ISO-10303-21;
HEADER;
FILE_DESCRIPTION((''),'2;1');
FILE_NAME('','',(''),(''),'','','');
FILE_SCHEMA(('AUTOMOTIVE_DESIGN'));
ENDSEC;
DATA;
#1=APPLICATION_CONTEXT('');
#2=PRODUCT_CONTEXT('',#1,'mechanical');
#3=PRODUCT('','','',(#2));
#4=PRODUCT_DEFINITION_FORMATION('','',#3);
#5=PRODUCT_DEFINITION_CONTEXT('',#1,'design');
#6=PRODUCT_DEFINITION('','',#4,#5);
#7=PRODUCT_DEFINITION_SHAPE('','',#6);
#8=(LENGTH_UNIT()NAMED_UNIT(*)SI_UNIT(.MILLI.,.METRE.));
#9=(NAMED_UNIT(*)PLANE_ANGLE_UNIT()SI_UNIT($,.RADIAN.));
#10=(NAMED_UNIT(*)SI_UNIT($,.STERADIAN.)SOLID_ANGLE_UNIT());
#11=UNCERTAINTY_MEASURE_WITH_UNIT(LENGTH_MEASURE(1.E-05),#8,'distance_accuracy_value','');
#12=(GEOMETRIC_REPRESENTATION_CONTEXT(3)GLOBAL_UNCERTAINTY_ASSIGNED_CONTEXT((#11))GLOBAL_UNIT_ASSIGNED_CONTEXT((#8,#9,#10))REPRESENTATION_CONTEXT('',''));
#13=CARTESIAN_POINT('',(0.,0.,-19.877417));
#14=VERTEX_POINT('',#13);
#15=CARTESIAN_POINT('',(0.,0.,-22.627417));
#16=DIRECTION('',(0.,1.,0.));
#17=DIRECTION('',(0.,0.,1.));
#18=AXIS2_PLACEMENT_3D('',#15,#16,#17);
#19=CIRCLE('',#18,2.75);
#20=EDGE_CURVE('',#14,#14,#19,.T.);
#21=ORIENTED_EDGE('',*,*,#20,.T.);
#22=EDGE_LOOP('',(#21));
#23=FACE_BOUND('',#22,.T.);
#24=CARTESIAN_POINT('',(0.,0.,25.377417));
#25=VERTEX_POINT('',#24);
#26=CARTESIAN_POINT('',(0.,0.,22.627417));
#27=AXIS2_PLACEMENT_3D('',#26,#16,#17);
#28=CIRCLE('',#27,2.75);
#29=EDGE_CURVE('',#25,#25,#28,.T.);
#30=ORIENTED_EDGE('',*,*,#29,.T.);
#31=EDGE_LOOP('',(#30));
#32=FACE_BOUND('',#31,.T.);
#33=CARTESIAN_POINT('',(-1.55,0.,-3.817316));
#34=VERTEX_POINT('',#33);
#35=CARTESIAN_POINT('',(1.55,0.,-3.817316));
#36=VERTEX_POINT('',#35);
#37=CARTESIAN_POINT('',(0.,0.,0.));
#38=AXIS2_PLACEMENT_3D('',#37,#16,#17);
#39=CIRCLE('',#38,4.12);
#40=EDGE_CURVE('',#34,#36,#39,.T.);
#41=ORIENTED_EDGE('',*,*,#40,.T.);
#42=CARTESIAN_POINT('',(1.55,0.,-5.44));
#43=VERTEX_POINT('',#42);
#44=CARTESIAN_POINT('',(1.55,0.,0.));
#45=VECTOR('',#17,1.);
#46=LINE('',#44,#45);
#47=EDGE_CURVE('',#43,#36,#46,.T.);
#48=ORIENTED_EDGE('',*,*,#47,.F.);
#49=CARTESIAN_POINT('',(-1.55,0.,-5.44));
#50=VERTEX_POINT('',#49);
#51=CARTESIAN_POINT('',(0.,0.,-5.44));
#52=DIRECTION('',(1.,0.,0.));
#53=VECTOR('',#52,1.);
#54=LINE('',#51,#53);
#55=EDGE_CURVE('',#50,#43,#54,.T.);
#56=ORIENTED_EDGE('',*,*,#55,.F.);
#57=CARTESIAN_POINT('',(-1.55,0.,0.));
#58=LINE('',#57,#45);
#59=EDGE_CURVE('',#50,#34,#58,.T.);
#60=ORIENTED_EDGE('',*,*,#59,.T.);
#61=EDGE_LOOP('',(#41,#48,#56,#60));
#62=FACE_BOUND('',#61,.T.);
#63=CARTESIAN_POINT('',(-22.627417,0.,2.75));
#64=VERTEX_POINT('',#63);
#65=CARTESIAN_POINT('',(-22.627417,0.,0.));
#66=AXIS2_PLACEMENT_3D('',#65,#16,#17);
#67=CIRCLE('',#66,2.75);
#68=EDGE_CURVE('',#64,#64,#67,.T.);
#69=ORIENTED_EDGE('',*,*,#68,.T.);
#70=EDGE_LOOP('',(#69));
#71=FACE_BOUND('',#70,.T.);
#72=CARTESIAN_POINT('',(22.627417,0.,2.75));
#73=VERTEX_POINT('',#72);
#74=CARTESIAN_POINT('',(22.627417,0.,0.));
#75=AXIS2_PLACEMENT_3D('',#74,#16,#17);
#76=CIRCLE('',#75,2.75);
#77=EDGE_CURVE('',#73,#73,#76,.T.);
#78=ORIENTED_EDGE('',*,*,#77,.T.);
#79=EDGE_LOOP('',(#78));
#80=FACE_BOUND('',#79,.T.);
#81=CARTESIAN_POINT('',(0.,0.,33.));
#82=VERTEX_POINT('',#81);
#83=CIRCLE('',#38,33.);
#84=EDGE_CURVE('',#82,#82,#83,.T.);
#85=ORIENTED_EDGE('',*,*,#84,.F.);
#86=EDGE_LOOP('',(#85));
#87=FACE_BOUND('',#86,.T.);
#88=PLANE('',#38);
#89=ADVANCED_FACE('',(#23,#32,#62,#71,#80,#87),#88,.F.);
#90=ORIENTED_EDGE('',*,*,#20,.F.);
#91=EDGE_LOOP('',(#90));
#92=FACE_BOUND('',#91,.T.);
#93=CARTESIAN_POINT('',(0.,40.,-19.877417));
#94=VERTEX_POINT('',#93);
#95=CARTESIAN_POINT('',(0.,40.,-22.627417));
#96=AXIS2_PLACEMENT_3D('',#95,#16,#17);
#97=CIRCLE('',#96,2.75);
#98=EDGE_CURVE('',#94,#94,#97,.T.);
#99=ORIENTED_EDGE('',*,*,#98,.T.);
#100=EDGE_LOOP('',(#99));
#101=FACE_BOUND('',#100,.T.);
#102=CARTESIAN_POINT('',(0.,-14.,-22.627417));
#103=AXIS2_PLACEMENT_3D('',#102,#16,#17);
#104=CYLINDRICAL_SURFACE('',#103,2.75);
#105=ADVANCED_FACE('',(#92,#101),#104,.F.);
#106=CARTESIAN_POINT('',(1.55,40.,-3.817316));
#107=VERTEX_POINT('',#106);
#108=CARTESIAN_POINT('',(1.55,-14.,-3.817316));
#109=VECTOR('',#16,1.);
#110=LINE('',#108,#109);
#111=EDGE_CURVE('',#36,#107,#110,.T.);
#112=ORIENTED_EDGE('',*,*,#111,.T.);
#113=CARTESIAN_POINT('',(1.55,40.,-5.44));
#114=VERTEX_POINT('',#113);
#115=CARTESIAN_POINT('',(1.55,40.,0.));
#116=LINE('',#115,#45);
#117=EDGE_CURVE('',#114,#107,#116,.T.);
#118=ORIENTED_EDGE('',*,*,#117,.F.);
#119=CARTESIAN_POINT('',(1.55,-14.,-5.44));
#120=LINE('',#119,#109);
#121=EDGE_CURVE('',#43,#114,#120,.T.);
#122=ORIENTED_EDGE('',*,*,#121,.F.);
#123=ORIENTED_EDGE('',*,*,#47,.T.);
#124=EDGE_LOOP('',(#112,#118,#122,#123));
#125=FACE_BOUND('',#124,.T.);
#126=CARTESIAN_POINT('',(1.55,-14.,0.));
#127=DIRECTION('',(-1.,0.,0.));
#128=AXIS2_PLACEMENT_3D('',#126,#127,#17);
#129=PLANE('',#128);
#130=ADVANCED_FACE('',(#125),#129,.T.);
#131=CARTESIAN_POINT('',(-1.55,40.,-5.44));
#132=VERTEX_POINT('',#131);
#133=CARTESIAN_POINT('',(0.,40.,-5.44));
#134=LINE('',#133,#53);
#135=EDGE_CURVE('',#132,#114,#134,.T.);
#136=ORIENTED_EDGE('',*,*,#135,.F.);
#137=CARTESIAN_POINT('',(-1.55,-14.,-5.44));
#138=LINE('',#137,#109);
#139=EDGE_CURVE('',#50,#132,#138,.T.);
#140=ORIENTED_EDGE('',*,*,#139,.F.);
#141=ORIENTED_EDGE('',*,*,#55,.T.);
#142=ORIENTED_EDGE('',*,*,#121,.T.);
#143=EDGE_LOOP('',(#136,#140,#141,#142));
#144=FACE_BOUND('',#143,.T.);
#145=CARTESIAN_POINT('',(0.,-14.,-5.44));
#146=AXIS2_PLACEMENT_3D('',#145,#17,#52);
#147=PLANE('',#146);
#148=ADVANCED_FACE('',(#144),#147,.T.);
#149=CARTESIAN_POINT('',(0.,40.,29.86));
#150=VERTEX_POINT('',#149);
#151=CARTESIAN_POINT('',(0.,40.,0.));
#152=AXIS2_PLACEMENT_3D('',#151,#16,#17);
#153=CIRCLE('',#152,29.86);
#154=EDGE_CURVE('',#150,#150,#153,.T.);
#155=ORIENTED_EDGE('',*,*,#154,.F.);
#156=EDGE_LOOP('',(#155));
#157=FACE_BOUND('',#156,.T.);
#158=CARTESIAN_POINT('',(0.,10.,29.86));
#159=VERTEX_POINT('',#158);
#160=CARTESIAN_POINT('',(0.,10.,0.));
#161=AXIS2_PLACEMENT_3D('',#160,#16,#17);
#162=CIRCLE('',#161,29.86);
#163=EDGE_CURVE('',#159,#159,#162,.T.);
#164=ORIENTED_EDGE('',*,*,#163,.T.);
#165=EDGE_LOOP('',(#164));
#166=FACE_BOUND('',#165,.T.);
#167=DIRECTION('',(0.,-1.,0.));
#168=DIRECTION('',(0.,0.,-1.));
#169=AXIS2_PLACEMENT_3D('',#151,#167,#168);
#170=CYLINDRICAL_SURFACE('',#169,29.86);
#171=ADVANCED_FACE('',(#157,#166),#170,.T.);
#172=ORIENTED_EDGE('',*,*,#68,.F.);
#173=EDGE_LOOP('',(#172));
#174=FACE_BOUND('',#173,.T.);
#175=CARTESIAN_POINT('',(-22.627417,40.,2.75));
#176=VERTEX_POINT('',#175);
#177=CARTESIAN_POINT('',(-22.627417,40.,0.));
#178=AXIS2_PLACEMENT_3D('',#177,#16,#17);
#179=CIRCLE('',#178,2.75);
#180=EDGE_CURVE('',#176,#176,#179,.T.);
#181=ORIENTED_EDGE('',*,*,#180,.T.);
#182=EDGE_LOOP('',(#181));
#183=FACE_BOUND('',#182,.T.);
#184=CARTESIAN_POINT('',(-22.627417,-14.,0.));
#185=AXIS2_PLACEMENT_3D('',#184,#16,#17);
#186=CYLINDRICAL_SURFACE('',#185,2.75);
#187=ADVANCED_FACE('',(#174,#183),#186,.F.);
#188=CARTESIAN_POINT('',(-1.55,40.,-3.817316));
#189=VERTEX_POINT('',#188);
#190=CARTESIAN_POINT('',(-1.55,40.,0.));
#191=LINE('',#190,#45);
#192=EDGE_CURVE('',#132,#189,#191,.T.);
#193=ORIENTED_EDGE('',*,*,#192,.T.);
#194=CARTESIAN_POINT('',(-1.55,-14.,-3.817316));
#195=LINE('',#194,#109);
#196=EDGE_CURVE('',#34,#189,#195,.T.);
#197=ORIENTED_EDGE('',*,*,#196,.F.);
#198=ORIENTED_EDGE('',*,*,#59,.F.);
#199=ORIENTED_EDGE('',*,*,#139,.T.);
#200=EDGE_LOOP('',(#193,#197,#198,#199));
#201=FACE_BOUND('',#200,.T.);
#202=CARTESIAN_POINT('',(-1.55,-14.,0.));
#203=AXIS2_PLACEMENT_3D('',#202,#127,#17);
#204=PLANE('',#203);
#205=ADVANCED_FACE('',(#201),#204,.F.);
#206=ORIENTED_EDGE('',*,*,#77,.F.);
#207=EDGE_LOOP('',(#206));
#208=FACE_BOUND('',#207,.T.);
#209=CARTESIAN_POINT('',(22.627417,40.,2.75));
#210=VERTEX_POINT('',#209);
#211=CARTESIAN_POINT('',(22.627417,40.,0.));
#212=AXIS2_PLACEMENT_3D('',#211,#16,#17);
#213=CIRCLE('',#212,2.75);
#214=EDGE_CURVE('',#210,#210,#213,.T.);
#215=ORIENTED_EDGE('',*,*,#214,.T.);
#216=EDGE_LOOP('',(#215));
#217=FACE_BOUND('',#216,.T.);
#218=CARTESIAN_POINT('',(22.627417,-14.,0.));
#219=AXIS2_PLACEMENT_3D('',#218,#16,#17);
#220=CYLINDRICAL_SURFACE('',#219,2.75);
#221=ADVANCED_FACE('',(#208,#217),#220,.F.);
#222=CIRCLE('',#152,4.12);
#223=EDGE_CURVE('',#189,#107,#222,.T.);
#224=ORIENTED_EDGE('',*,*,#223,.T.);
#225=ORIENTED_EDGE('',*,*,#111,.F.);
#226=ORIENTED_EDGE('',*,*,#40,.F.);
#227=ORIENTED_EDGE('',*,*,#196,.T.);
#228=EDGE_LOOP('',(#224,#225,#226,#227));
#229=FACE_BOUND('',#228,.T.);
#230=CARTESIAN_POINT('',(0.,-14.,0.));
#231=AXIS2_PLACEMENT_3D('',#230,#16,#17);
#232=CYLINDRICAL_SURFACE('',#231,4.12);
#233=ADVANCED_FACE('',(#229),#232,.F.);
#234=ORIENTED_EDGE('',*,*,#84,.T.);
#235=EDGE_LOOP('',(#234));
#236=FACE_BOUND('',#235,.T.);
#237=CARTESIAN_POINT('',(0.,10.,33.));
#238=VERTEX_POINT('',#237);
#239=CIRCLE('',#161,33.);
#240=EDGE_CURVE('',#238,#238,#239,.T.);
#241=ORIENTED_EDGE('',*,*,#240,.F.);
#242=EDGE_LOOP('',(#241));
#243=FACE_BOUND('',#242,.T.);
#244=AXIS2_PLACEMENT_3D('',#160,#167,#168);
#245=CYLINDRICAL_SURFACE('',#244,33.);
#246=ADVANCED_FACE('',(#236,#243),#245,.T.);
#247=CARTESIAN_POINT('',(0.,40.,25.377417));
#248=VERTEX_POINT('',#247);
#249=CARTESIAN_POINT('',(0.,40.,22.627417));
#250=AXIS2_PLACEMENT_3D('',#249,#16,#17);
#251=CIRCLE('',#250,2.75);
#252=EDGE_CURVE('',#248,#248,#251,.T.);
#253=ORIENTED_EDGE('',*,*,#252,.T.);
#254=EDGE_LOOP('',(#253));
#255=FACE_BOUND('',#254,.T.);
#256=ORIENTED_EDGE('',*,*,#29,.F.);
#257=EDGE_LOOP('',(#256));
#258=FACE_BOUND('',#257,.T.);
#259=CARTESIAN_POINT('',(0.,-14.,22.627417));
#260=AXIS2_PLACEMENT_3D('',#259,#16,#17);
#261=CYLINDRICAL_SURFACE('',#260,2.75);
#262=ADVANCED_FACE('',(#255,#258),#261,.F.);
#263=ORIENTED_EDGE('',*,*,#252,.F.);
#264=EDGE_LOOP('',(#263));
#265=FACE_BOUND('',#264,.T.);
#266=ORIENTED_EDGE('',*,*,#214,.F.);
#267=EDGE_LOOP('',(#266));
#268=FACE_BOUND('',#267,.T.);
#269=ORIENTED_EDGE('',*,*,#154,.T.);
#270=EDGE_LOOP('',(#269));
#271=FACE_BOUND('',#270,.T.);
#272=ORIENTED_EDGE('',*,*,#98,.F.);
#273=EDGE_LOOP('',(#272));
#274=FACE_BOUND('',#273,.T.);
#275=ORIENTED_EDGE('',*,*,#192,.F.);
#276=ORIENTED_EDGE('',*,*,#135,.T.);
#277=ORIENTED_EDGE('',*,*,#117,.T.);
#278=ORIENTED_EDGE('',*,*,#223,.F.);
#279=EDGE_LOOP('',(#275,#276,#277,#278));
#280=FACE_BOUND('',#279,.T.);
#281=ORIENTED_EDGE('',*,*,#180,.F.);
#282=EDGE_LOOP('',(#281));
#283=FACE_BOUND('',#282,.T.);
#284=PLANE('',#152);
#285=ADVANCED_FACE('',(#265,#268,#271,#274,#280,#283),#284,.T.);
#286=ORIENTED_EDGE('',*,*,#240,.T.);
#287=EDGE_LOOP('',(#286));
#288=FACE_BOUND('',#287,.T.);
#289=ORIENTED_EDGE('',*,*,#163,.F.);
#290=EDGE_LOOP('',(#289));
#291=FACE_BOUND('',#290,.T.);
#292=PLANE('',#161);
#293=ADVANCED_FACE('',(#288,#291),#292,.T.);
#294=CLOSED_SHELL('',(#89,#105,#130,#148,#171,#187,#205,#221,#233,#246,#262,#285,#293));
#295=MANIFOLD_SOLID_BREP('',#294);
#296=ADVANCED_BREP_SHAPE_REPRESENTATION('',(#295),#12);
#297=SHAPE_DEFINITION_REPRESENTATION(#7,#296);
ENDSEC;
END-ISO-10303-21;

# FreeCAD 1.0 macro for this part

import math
import FreeCAD as App
import Part
import Sketcher
Q = App.Units.Quantity

doc = App.newDocument("Part")
body = doc.addObject("PartDesign::Body", "Body")

# Sketch on XZ plane
sketch1 = body.newObject("Sketcher::SketchObject", "Sketch")
sketch1.AttachmentSupport = (doc.getObject("XZ_Plane"), [""])
sketch1.MapMode = "FlatFace"
sketch1.addGeometry(Part.Circle(App.Vector(0, 0, 0), App.Vector(0, 0, 1), 33), False)
sketch1.addConstraint([
    Sketcher.Constraint("Coincident", 0, 3, -1, 1),
    Sketcher.Constraint("Diameter", 0, Q("66 mm")),
])
pad1 = body.newObject("PartDesign::Pad", "Pad")
pad1.Profile = sketch1
pad1.Length = 10
pad1.Reversed = True

# Sketch on XZ plane
sketch2 = body.newObject("Sketcher::SketchObject", "Sketch001")
sketch2.AttachmentSupport = (doc.getObject("XZ_Plane"), [""])
sketch2.MapMode = "FlatFace"
sketch2.AttachmentOffset = App.Placement(App.Vector(0, 0, -10), App.Rotation())
sketch2.addGeometry(Part.Circle(App.Vector(0, 0, 0), App.Vector(0, 0, 1), 30), False)
sketch2.addConstraint([
    Sketcher.Constraint("Coincident", 0, 3, -1, 1),
    Sketcher.Constraint("Diameter", 0, Q("59.72 mm")),
])
pad2 = body.newObject("PartDesign::Pad", "Pad001")
pad2.Profile = sketch2
pad2.Length = 30
pad2.Reversed = True

# Sketch on XZ plane
sketch3 = body.newObject("Sketcher::SketchObject", "Sketch002")
sketch3.AttachmentSupport = (doc.getObject("XZ_Plane"), [""])
sketch3.MapMode = "FlatFace"
sketch3.AttachmentOffset = App.Placement(App.Vector(0, 0, -40), App.Rotation())
sketch3.addGeometry([
    Part.ArcOfCircle(Part.Circle(App.Vector(0, -22.6, 0), App.Vector(0, 0, 1), 2.7), math.radians(45), math.radians(135)),  # 0
    Part.ArcOfCircle(Part.Circle(App.Vector(0, -22.6, 0), App.Vector(0, 0, 1), 2.8), math.radians(0), math.radians(45)),  # 1
    Part.ArcOfCircle(Part.Circle(App.Vector(0, -22.6, 0), App.Vector(0, 0, 1), 2.8), math.radians(135), math.radians(360)),  # 2
    Part.ArcOfCircle(Part.Circle(App.Vector(22.6, 0, 0), App.Vector(0, 0, 1), 2.8), math.radians(-135), math.radians(0)),  # 3
    Part.ArcOfCircle(Part.Circle(App.Vector(22.6, 0, 0), App.Vector(0, 0, 1), 2.7), math.radians(135), math.radians(225)),  # 4
    Part.ArcOfCircle(Part.Circle(App.Vector(22.6, 0, 0), App.Vector(0, 0, 1), 2.8), math.radians(0), math.radians(135)),  # 5
    Part.ArcOfCircle(Part.Circle(App.Vector(0, 22.6, 0), App.Vector(0, 0, 1), 2.7), math.radians(-135), math.radians(-45)),  # 6
    Part.ArcOfCircle(Part.Circle(App.Vector(0, 22.6, 0), App.Vector(0, 0, 1), 2.8), math.radians(0), math.radians(225)),  # 7
    Part.ArcOfCircle(Part.Circle(App.Vector(0, 22.6, 0), App.Vector(0, 0, 1), 2.8), math.radians(-45), math.radians(0)),  # 8
    Part.ArcOfCircle(Part.Circle(App.Vector(-22.6, 0, 0), App.Vector(0, 0, 1), 2.8), math.radians(-45), math.radians(0)),  # 9
    Part.ArcOfCircle(Part.Circle(App.Vector(-22.6, 0, 0), App.Vector(0, 0, 1), 2.8), math.radians(45), math.radians(315)),  # 10
    Part.ArcOfCircle(Part.Circle(App.Vector(-22.6, 0, 0), App.Vector(0, 0, 1), 2.8), math.radians(0), math.radians(45)),  # 11
], False)
sketch3.addConstraint([
    Sketcher.Constraint("Tangent", 0, 1, 1, 2),
    Sketcher.Constraint("Tangent", 1, 1, 2, 2),
    Sketcher.Constraint("Tangent", 2, 1, 0, 2),
    Sketcher.Constraint("Tangent", 3, 1, 4, 2),
    Sketcher.Constraint("Tangent", 4, 1, 5, 2),
    Sketcher.Constraint("Tangent", 5, 1, 3, 2),
    Sketcher.Constraint("Tangent", 6, 1, 7, 2),
    Sketcher.Constraint("Tangent", 7, 1, 8, 2),
    Sketcher.Constraint("Tangent", 8, 1, 6, 2),
    Sketcher.Constraint("Tangent", 9, 1, 10, 2),
    Sketcher.Constraint("Tangent", 10, 1, 11, 2),
    Sketcher.Constraint("Tangent", 11, 1, 9, 2),
    Sketcher.Constraint("Equal", 2, 3),
    Sketcher.Constraint("Equal", 5, 6),
    Sketcher.Constraint("Equal", 8, 9),
    Sketcher.Constraint("Symmetric", 0, 3, 6, 3, -1, 1),
    Sketcher.Constraint("Symmetric", 3, 3, 9, 3, -1, 1),
    Sketcher.Constraint("Symmetric", 0, 1, 2, 1, -2),
    Sketcher.Constraint("Symmetric", 3, 1, 9, 1, -2),
    Sketcher.Constraint("PointOnObject", 5, 1, -1),
    Sketcher.Constraint("PointOnObject", 11, 1, -1),
    Sketcher.Constraint("Horizontal", 2, 3, 1, 1),
    Sketcher.Constraint("Horizontal", 8, 3, 7, 1),
    Sketcher.Constraint("Horizontal", 6, 1, 8, 1),
    Sketcher.Constraint("Horizontal", 4, 1, 10, 1),
    Sketcher.Constraint("Vertical", 3, 1, 4, 1),
    Sketcher.Constraint("Vertical", 2, 1, 6, 1),
    Sketcher.Constraint("Radius", 0, Q("2.75 mm")),
    Sketcher.Constraint("DistanceX", 0, 1, 3, 1, Q("18.73833 mm")),
    Sketcher.Constraint("DistanceY", 0, 1, 3, 1, Q("18.73833 mm")),
    Sketcher.Constraint("DistanceY", 0, 3, -1, 1, Q("22.627417 mm")),
    Sketcher.Constraint("DistanceX", -1, 1, 0, 1, Q("1.944544 mm")),
])
pocket1 = body.newObject("PartDesign::Pocket", "Pocket")
pocket1.Profile = sketch3
pocket1.Length = 54
pocket1.Reversed = True

# Sketch on XZ plane
sketch4 = body.newObject("Sketcher::SketchObject", "Sketch003")
sketch4.AttachmentSupport = (doc.getObject("XZ_Plane"), [""])
sketch4.MapMode = "FlatFace"
sketch4.AttachmentOffset = App.Placement(App.Vector(0, 0, -40), App.Rotation())
sketch4.addGeometry([
    Part.LineSegment(App.Vector(1.6, -3.8, 0), App.Vector(1.6, -5.4, 0)),
    Part.LineSegment(App.Vector(1.6, -5.4, 0), App.Vector(-1.6, -5.4, 0)),
    Part.LineSegment(App.Vector(-1.6, -5.4, 0), App.Vector(-1.6, -3.8, 0)),
    Part.ArcOfCircle(Part.Circle(App.Vector(0, 0, 0), App.Vector(0, 0, 1), 4.1), math.radians(-68), math.radians(248)),
], False)
sketch4.addConstraint([
    Sketcher.Constraint("Coincident", 0, 2, 1, 1),
    Sketcher.Constraint("Coincident", 1, 2, 2, 1),
    Sketcher.Constraint("Coincident", 2, 2, 3, 2),
    Sketcher.Constraint("Coincident", 3, 1, 0, 1),
    Sketcher.Constraint("Vertical", 0),
    Sketcher.Constraint("Horizontal", 1),
    Sketcher.Constraint("Vertical", 2),
    Sketcher.Constraint("Coincident", 3, 3, -1, 1),
    Sketcher.Constraint("Horizontal", 2, 2, 3, 1),
    Sketcher.Constraint("Radius", 3, Q("4.12 mm")),
    Sketcher.Constraint("DistanceX", 1, 2, 1, 1, Q("3.1 mm")),
    Sketcher.Constraint("DistanceY", 0, 2, -1, 1, Q("5.44 mm")),
])
pocket2 = body.newObject("PartDesign::Pocket", "Pocket001")
pocket2.Profile = sketch4
pocket2.Length = 54
pocket2.Reversed = True

doc.recompute()
